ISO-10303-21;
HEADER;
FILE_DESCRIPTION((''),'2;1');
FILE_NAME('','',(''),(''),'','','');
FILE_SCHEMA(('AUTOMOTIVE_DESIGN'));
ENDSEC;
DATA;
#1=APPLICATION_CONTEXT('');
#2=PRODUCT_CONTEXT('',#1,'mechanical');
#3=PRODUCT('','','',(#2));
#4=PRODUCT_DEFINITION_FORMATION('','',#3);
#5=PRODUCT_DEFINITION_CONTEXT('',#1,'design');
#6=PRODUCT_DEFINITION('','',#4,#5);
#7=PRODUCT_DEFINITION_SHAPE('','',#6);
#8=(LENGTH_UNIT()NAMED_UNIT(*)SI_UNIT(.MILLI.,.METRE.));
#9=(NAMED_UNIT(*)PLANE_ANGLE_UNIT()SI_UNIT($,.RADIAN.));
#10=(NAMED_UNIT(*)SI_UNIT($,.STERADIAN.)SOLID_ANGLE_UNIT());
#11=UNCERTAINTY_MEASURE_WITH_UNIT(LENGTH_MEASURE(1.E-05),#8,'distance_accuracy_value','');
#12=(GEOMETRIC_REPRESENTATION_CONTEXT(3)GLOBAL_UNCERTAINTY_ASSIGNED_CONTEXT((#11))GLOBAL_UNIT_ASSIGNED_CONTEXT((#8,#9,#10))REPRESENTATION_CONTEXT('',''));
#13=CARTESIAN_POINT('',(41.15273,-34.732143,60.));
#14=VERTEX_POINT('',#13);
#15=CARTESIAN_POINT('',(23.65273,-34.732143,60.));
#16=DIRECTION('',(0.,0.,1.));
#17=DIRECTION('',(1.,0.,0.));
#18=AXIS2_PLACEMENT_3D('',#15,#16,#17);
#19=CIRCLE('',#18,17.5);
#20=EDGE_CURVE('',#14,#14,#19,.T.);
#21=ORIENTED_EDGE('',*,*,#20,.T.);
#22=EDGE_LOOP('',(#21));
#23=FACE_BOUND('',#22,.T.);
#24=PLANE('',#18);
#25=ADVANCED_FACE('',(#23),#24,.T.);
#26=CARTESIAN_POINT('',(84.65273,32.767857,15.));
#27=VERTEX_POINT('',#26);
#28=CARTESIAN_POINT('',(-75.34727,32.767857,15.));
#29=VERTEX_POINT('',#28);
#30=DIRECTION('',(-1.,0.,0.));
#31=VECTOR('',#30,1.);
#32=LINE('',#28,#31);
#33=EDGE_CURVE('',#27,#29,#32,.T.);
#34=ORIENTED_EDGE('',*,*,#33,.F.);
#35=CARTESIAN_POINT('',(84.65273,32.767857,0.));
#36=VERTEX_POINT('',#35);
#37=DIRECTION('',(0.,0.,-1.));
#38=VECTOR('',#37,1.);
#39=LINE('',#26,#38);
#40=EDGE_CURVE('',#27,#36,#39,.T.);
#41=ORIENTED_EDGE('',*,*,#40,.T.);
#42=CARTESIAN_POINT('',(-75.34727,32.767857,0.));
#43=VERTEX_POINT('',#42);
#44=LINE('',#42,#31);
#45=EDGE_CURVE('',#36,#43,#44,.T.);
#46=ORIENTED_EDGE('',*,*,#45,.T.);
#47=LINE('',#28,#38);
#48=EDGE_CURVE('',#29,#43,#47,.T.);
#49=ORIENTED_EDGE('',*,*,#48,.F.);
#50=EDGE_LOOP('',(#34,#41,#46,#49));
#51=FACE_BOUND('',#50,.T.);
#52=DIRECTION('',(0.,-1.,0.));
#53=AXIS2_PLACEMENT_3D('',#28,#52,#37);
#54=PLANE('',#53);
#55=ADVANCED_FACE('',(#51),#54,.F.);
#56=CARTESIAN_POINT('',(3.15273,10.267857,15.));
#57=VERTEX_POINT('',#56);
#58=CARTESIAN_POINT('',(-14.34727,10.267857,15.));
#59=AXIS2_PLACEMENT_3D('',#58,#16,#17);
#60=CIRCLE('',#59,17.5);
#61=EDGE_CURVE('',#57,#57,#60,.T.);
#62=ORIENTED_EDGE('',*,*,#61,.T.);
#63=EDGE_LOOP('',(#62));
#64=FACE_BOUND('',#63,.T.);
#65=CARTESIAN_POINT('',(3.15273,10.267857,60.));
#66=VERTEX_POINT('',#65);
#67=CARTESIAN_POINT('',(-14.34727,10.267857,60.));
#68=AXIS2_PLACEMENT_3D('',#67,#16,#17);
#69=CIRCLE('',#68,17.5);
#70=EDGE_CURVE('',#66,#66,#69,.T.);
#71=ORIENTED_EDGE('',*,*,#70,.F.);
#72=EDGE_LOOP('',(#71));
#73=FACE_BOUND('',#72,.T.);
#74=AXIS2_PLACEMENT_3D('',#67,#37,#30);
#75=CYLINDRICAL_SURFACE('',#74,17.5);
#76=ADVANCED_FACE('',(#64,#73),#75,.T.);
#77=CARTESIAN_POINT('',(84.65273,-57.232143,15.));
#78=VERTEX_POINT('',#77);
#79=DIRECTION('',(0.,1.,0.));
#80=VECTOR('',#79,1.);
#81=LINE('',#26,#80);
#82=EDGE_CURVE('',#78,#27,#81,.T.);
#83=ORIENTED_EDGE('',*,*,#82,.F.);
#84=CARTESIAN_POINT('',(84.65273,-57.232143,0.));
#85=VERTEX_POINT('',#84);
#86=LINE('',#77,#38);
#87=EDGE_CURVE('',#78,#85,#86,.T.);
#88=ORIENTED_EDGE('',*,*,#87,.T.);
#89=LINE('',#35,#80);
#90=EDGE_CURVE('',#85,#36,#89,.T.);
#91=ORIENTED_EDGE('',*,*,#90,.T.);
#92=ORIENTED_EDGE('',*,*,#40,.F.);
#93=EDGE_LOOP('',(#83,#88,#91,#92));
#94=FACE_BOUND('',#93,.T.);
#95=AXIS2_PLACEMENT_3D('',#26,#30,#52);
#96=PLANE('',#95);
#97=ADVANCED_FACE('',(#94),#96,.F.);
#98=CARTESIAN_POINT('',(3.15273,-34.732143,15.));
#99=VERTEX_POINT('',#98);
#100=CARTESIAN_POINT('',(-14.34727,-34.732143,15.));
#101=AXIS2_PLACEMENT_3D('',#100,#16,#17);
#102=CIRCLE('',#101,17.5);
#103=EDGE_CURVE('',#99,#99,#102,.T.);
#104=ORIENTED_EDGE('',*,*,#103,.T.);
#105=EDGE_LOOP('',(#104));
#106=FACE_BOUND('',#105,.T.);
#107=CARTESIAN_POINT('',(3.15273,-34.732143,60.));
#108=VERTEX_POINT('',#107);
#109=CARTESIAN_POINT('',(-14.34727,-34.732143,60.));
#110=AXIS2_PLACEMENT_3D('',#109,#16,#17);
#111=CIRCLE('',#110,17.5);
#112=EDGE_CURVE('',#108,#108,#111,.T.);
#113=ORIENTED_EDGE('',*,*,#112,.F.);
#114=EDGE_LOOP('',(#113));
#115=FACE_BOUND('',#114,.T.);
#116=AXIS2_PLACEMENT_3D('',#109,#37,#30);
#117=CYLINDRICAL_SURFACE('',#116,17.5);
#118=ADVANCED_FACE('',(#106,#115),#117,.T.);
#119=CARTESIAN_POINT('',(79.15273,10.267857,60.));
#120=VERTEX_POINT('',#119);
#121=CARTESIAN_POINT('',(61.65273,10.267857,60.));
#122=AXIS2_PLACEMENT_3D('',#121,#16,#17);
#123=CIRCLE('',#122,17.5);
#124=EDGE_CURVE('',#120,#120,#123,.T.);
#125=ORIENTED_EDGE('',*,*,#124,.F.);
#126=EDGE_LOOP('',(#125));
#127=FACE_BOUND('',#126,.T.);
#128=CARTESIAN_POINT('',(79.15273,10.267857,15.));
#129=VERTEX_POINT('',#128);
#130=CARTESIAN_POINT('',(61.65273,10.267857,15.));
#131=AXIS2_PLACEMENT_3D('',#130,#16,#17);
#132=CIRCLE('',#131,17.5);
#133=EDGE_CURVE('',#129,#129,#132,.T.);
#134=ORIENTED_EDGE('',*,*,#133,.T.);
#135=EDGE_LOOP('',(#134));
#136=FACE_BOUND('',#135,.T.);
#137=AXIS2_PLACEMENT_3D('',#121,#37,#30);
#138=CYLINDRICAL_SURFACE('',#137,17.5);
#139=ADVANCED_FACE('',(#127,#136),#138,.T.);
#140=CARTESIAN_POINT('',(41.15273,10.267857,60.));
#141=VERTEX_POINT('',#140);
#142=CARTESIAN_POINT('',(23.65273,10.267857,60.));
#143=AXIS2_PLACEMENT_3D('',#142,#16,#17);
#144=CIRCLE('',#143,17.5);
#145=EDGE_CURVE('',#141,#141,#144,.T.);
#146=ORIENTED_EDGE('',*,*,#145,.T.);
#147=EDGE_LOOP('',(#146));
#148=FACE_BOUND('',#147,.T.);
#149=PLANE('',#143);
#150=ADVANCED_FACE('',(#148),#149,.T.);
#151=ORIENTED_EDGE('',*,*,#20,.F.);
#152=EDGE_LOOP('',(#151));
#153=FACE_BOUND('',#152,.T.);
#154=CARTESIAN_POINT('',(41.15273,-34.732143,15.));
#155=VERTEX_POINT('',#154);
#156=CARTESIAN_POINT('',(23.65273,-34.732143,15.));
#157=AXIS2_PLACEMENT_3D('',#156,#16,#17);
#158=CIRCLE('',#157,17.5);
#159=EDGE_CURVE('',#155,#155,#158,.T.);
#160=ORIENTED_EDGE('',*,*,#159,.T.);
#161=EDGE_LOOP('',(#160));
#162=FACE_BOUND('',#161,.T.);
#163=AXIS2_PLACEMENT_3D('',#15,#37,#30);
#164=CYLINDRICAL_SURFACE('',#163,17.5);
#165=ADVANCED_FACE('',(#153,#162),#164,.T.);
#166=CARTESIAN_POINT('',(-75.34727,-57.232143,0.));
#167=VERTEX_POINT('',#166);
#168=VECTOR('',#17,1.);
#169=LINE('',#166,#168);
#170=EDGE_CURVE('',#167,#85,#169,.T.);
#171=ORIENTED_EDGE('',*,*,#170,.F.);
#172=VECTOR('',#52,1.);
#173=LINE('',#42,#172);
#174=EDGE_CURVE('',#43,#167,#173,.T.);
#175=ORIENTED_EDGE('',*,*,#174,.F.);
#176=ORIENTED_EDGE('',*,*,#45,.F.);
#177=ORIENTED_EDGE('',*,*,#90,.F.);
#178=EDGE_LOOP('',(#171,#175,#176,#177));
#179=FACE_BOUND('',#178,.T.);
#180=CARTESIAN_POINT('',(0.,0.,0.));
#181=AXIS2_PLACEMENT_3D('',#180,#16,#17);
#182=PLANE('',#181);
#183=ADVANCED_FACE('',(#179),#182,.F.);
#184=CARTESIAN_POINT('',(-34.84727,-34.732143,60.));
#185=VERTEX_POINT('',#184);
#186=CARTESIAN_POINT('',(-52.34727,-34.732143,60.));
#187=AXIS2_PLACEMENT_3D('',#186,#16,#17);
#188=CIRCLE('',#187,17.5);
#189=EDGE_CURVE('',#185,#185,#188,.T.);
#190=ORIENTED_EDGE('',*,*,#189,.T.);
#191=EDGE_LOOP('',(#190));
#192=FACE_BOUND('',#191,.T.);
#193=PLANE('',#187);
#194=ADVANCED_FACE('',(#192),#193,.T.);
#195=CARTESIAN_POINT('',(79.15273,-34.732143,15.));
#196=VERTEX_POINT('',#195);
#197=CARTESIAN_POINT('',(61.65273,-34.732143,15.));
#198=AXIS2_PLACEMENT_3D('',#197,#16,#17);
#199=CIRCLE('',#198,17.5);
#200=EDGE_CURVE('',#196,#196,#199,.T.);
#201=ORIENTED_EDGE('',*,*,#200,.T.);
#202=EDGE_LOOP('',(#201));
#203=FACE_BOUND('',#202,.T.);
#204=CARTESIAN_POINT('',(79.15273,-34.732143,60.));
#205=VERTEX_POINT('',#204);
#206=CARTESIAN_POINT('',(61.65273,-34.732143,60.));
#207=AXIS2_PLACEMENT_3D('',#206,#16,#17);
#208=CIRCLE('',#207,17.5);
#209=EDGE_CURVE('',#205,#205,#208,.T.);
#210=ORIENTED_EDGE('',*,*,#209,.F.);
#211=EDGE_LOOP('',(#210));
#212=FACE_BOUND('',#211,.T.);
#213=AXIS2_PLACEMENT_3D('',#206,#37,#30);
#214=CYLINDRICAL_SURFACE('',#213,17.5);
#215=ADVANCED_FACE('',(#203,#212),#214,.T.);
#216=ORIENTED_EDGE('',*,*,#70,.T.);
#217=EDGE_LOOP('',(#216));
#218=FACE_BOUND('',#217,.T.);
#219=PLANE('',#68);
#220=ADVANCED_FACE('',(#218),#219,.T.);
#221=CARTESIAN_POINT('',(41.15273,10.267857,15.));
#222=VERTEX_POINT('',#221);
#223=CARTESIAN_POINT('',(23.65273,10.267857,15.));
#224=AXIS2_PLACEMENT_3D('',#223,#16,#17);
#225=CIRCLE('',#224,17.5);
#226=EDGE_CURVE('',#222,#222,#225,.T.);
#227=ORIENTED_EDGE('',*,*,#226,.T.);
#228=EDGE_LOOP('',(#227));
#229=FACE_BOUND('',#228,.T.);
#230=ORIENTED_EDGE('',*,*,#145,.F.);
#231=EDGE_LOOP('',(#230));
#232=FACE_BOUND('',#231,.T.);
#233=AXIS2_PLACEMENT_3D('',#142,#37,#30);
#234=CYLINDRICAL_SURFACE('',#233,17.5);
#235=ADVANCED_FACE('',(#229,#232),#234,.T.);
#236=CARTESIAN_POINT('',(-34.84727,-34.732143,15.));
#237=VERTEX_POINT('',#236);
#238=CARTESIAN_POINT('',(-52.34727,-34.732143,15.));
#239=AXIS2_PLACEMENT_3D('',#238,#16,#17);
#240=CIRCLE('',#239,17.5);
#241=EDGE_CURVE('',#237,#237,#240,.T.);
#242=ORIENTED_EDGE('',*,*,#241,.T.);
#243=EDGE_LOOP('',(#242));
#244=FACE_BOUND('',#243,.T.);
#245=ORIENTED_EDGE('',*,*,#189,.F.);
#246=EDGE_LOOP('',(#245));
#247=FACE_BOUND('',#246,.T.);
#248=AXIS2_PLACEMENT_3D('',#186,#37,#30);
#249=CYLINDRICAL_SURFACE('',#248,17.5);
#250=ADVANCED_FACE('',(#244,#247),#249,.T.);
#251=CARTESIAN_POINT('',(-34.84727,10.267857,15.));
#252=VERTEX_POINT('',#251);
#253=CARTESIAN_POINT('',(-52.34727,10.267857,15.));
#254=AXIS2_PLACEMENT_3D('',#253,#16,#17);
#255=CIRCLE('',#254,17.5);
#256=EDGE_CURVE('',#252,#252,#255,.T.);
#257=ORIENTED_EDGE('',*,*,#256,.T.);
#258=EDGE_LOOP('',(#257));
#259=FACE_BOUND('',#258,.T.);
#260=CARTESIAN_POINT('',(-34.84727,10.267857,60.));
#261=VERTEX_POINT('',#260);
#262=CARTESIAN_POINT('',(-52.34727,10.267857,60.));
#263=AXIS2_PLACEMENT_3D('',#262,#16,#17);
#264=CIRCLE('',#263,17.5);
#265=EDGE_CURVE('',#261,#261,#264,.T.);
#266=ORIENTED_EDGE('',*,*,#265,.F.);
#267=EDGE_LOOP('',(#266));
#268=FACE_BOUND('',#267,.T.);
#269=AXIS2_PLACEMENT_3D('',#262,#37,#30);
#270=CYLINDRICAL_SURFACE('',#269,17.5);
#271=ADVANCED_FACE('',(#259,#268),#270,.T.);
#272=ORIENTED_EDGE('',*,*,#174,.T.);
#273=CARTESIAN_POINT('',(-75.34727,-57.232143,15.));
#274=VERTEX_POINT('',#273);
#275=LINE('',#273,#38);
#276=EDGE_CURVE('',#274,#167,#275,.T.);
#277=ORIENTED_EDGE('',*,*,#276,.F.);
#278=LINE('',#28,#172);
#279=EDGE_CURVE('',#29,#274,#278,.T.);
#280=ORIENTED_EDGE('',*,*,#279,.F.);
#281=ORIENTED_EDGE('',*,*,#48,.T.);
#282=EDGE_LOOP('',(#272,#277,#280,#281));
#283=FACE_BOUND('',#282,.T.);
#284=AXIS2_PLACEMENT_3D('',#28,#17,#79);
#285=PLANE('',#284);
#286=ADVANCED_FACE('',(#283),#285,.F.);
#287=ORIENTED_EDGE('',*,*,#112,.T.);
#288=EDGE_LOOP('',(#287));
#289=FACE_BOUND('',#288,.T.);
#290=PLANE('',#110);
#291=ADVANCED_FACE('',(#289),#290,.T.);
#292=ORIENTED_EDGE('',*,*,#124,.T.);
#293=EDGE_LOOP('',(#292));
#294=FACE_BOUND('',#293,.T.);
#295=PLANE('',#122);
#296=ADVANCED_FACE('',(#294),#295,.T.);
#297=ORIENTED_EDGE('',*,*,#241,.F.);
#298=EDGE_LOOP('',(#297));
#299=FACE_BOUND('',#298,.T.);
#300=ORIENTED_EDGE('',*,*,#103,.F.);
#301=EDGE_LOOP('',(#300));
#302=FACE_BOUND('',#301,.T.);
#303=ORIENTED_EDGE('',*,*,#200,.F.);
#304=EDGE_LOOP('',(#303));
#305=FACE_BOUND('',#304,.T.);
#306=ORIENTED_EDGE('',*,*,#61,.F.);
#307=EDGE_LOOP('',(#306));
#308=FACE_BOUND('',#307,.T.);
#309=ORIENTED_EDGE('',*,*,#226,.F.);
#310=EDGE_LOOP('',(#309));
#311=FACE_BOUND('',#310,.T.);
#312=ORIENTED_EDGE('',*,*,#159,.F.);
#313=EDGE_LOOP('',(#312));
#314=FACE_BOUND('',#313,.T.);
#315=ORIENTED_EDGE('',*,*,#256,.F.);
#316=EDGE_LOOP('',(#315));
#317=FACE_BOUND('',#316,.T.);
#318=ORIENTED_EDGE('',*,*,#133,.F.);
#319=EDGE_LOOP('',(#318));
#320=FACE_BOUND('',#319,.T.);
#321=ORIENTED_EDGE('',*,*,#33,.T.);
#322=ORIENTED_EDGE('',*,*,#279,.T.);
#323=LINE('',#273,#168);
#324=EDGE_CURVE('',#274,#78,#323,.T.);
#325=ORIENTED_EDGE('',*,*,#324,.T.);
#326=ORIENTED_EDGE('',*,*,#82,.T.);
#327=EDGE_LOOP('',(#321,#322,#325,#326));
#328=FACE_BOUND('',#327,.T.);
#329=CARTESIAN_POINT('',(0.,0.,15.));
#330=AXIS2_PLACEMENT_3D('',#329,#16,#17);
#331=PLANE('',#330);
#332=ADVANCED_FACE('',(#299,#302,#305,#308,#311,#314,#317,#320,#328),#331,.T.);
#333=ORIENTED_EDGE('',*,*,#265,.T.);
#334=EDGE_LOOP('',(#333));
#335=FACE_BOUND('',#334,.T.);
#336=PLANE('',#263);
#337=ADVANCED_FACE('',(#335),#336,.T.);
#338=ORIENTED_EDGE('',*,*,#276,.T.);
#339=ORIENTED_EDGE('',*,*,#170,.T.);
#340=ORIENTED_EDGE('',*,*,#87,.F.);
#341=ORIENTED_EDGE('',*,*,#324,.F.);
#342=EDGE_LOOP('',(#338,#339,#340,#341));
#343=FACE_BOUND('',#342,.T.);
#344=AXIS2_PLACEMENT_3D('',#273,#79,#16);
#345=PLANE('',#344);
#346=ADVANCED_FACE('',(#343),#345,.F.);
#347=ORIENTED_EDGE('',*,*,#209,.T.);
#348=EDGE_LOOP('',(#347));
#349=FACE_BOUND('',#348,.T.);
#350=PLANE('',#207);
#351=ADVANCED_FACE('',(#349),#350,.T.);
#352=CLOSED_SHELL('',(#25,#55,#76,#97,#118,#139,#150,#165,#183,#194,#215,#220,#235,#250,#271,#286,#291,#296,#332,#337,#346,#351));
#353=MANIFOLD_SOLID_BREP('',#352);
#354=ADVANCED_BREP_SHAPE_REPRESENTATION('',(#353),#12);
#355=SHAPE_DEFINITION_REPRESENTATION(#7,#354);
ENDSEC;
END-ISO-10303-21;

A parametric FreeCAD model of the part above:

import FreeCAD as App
import Part
import Sketcher


def add_polygon(sketch, points):
    """Adds a closed chain of lines whose ends are joined by coincident constraints."""
    first, n = sketch.GeometryCount, len(points)
    for a, b in zip(points, points[1:] + points[:1]):
        sketch.addGeometry(Part.LineSegment(App.Vector(*a, 0), App.Vector(*b, 0)), False)
    for i in range(n):
        sketch.addConstraint(Sketcher.Constraint("Coincident", first + i, 2, first + (i + 1) % n, 1))

doc = App.newDocument("Part")
body = doc.addObject("PartDesign::Body", "Body")

sketch1 = body.newObject("Sketcher::SketchObject", "Sketch")
sketch1.AttachmentSupport = (doc.getObject("XY_Plane"), [""])
sketch1.MapMode = "FlatFace"
add_polygon(sketch1, [(-75.34727, 32.767857), (-75.34727, -57.232143), (84.65273, -57.232143), (84.65273, 32.767857)])
sketch1.addConstraint([
    Sketcher.Constraint("Vertical", 0),
    Sketcher.Constraint("Horizontal", 1),
    Sketcher.Constraint("Vertical", 2),
    Sketcher.Constraint("Horizontal", 3),
    Sketcher.Constraint("DistanceX", 1, 1, 1, 2, 160.0),
    Sketcher.Constraint("DistanceY", 0, 2, 0, 1, 90.0),
    Sketcher.Constraint("DistanceX", 0, 2, -1, 1, 75.34727),
    Sketcher.Constraint("DistanceY", 0, 2, -1, 1, 57.232143),
])
pad1 = body.newObject("PartDesign::Pad", "Pad")
pad1.Profile = sketch1
pad1.Length = 15

sketch2 = body.newObject("Sketcher::SketchObject", "Sketch001")
sketch2.AttachmentSupport = (doc.getObject("XY_Plane"), [""])
sketch2.MapMode = "FlatFace"
sketch2.AttachmentOffset = App.Placement(App.Vector(0, 0, 15), App.Rotation())
sketch2.addGeometry([
    Part.Circle(App.Vector(-52.34727, 10.267857, 0), App.Vector(0, 0, 1), 17.5),
    Part.Circle(App.Vector(-14.34727, 10.267857, 0), App.Vector(0, 0, 1), 17.5),
    Part.Circle(App.Vector(23.65273, 10.267857, 0), App.Vector(0, 0, 1), 17.5),
    Part.Circle(App.Vector(61.65273, 10.267857, 0), App.Vector(0, 0, 1), 17.5),
    Part.Circle(App.Vector(-14.34727, -34.732143, 0), App.Vector(0, 0, 1), 17.5),
    Part.Circle(App.Vector(23.65273, -34.732143, 0), App.Vector(0, 0, 1), 17.5),
    Part.Circle(App.Vector(61.65273, -34.732143, 0), App.Vector(0, 0, 1), 17.5),
    Part.Circle(App.Vector(-52.34727, -34.732143, 0), App.Vector(0, 0, 1), 17.5),
], False)
sketch2.addConstraint([
    Sketcher.Constraint("Equal", 0, 1),
    Sketcher.Constraint("Equal", 1, 2),
    Sketcher.Constraint("Equal", 2, 3),
    Sketcher.Constraint("Equal", 3, 4),
    Sketcher.Constraint("Equal", 4, 5),
    Sketcher.Constraint("Equal", 5, 6),
    Sketcher.Constraint("Equal", 6, 7),
    Sketcher.Constraint("Horizontal", 0, 3, 1, 3),
    Sketcher.Constraint("Horizontal", 1, 3, 2, 3),
    Sketcher.Constraint("Horizontal", 2, 3, 3, 3),
    Sketcher.Constraint("Horizontal", 4, 3, 5, 3),
    Sketcher.Constraint("Horizontal", 5, 3, 6, 3),
    Sketcher.Constraint("Horizontal", 6, 3, 7, 3),
    Sketcher.Constraint("Vertical", 1, 3, 4, 3),
    Sketcher.Constraint("Vertical", 2, 3, 5, 3),
    Sketcher.Constraint("Vertical", 3, 3, 6, 3),
    Sketcher.Constraint("Vertical", 0, 3, 7, 3),
    Sketcher.Constraint("Diameter", 0, 35.0),
    Sketcher.Constraint("DistanceX", 0, 3, 1, 3, 38.0),
    Sketcher.Constraint("DistanceX", 1, 3, 2, 3, 38.0),
    Sketcher.Constraint("DistanceX", 2, 3, 3, 3, 38.0),
    Sketcher.Constraint("DistanceY", 4, 3, 1, 3, 45.0),
    Sketcher.Constraint("DistanceX", 0, 3, -1, 1, 52.34727),
    Sketcher.Constraint("DistanceY", -1, 1, 0, 3, 10.267857),
])
pad2 = body.newObject("PartDesign::Pad", "Pad001")
pad2.Profile = sketch2
pad2.Length = 45

doc.recompute()
